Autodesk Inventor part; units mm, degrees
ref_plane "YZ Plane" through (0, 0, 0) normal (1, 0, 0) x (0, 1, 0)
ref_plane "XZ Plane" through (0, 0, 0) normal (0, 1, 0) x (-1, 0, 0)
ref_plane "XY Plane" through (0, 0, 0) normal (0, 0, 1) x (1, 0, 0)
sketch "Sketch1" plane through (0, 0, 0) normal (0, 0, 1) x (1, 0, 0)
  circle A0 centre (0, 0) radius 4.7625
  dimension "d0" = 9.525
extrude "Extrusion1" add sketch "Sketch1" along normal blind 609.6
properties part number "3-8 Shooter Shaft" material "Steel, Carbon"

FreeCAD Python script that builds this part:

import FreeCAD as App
import Part
import Sketcher
Q = App.Units.Quantity

doc = App.newDocument("Part")
body = doc.addObject("PartDesign::Body", "Body")

# Sketch on XY plane
sketch1 = doc.addObject("Sketcher::SketchObject", "Sketch")
body.addObject(sketch1)
sketch1.AttachmentSupport = (doc.XY_Plane, [""])
sketch1.MapMode = "FlatFace"
sketch1.addGeometry(Part.Circle(App.Vector(0, 0, 0), App.Vector(0, 0, 1), 4.7625), False)
sketch1.addConstraint([
    Sketcher.Constraint("Coincident", 0, 3, -1, 1),
    Sketcher.Constraint("Diameter", 0, Q("0.375 in")),
])
pad1 = doc.addObject("PartDesign::Pad", "Pad")
body.addObject(pad1)
pad1.Profile = sketch1
pad1.Length = Q("24 in")

doc.recompute()
